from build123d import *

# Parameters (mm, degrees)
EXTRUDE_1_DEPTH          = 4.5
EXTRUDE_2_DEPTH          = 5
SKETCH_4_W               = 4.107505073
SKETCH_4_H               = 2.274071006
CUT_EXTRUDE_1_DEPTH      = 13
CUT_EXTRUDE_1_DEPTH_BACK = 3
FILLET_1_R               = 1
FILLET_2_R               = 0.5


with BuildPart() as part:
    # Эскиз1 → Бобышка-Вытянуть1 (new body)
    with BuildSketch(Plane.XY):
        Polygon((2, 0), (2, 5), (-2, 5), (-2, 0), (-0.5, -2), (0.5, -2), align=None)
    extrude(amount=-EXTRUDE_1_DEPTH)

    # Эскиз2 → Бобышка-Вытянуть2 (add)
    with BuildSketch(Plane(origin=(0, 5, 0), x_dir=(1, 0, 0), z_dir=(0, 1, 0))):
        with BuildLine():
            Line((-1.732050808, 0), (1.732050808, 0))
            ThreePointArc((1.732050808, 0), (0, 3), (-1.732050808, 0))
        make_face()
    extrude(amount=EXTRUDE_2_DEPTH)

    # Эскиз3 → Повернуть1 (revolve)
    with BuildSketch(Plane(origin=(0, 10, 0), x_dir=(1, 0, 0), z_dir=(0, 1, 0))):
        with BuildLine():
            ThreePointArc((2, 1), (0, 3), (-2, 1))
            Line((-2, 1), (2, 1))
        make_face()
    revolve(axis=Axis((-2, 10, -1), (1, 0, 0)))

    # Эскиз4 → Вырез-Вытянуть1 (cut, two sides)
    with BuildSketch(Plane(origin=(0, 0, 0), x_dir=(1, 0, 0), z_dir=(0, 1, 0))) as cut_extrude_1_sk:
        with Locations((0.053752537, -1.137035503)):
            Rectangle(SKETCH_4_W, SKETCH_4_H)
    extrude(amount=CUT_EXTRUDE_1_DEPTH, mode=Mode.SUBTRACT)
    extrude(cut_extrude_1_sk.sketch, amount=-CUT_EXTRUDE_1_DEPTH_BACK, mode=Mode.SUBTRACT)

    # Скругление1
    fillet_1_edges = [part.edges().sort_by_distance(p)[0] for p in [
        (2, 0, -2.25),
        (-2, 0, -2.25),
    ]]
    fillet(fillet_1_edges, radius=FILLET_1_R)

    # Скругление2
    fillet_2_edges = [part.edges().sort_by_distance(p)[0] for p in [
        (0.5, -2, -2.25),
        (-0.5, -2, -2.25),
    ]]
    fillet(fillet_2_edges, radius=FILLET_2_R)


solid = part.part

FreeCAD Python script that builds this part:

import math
import FreeCAD as App
import Part
import Sketcher
from FreeCAD import Vector


def edges_at(feature, points):
    """Names of the edges that pass closest to the given points."""
    edges = feature.Shape.Edges
    near = lambda p: min(range(len(edges)), key=lambda i: edges[i].distToShape(Part.Vertex(*p))[0])
    return sorted({f"Edge{near(p) + 1}" for p in points})

doc = App.newDocument("Part")
body = doc.addObject("PartDesign::Body", "Body")

# Sketch on XY plane
sketch1 = body.newObject("Sketcher::SketchObject", "Sketch")
sketch1.AttachmentSupport = (doc.getObject("XY_Plane"), [""])
sketch1.MapMode = "FlatFace"
sketch1.addGeometry(Part.LineSegment(Vector(2, 0, 0), Vector(2, 5, 0)), False)
sketch1.addGeometry(Part.LineSegment(Vector(2, 5, 0), Vector(-2, 5, 0)), False)
sketch1.addGeometry(Part.LineSegment(Vector(-2, 5, 0), Vector(-2, 0, 0)), False)
sketch1.addGeometry(Part.LineSegment(Vector(-2, 0, 0), Vector(-0.5, -2, 0)), False)
sketch1.addGeometry(Part.LineSegment(Vector(-0.5, -2, 0), Vector(0.5, -2, 0)), False)
sketch1.addGeometry(Part.LineSegment(Vector(0.5, -2, 0), Vector(2, 0, 0)), False)
sketch1.addConstraint(Sketcher.Constraint("Coincident", 0, 2, 1, 1))
sketch1.addConstraint(Sketcher.Constraint("Coincident", 1, 2, 2, 1))
sketch1.addConstraint(Sketcher.Constraint("Coincident", 2, 2, 3, 1))
sketch1.addConstraint(Sketcher.Constraint("Coincident", 3, 2, 4, 1))
sketch1.addConstraint(Sketcher.Constraint("Coincident", 4, 2, 5, 1))
sketch1.addConstraint(Sketcher.Constraint("Coincident", 5, 2, 0, 1))
sketch1.addConstraint(Sketcher.Constraint("Vertical", 0))
sketch1.addConstraint(Sketcher.Constraint("Horizontal", 1))
sketch1.addConstraint(Sketcher.Constraint("Vertical", 2))
sketch1.addConstraint(Sketcher.Constraint("Horizontal", 4))
sketch1.addConstraint(Sketcher.Constraint("Symmetric", 2, 2, 5, 2, -1, 1))
sketch1.addConstraint(Sketcher.Constraint("PointOnObject", 2, 2, -1))
sketch1.addConstraint(Sketcher.Constraint("Equal", 3, 5))
sketch1.addConstraint(Sketcher.Constraint("DistanceX", 1, 2, 1, 1, 4.0))
sketch1.addConstraint(Sketcher.Constraint("DistanceX", 4, 1, 4, 2, 1.0))
sketch1.addConstraint(Sketcher.Constraint("DistanceY", 0, 1, 0, 2, 5.0))
sketch1.addConstraint(Sketcher.Constraint("DistanceY", 3, 2, -1, 1, 2.0))
pad1 = body.newObject("PartDesign::Pad", "Pad")
pad1.Profile = sketch1
pad1.Length = 4.5
pad1.Reversed = True

# Sketch on XZ plane
sketch2 = body.newObject("Sketcher::SketchObject", "Sketch001")
sketch2.AttachmentSupport = (doc.getObject("XZ_Plane"), [""])
sketch2.MapMode = "FlatFace"
sketch2.AttachmentOffset = App.Placement(Vector(0, 0, -5), App.Rotation())
sketch2.addGeometry(Part.LineSegment(Vector(-1.732051, 0, 0), Vector(1.732051, 0, 0)), False)
sketch2.addGeometry(Part.ArcOfCircle(Part.Circle(Vector(0, -1, 0), Vector(0, 0, 1), 2), math.radians(150), math.radians(390)), False)
sketch2.addConstraint(Sketcher.Constraint("Coincident", 0, 1, 1, 1))
sketch2.addConstraint(Sketcher.Constraint("Coincident", 1, 2, 0, 2))
sketch2.addConstraint(Sketcher.Constraint("Horizontal", 0))
sketch2.addConstraint(Sketcher.Constraint("Symmetric", 0, 1, 1, 2, -1, 1))
sketch2.addConstraint(Sketcher.Constraint("Radius", 1, 2.0))
sketch2.addConstraint(Sketcher.Constraint("DistanceY", 1, 3, -1, 1, 1.0))
pad2 = body.newObject("PartDesign::Pad", "Pad001")
pad2.Profile = sketch2
pad2.Length = 5
pad2.Reversed = True

# Sketch on XZ plane
sketch3 = body.newObject("Sketcher::SketchObject", "Sketch002")
sketch3.AttachmentSupport = (doc.getObject("XZ_Plane"), [""])
sketch3.MapMode = "FlatFace"
sketch3.AttachmentOffset = App.Placement(Vector(0, 0, -10), App.Rotation())
sketch3.addGeometry(Part.ArcOfCircle(Part.Circle(Vector(0, -1, 0), Vector(0, 0, 1), 2), math.radians(180), math.radians(360)), False)
sketch3.addGeometry(Part.LineSegment(Vector(-2, -1, 0), Vector(2, -1, 0)), False)
sketch3.addGeometry(Part.LineSegment(Vector(-2, -1, 0), Vector(2, -1, 0)), True)  # axis
sketch3.addConstraint(Sketcher.Constraint("Coincident", 0, 1, 1, 1))
sketch3.addConstraint(Sketcher.Constraint("Coincident", 1, 2, 0, 2))
sketch3.addConstraint(Sketcher.Constraint("Horizontal", 1))
sketch3.addConstraint(Sketcher.Constraint("Horizontal", 2))
sketch3.addConstraint(Sketcher.Constraint("Coincident", 2, 1, 0, 1))
sketch3.addConstraint(Sketcher.Constraint("PointOnObject", 0, 3, -2))
sketch3.addConstraint(Sketcher.Constraint("Equal", 1, 2))
sketch3.addConstraint(Sketcher.Constraint("Radius", 0, 2.0))
sketch3.addConstraint(Sketcher.Constraint("DistanceY", 0, 3, -1, 1, 1.0))
sketch3.addConstraint(Sketcher.Constraint("DistanceY", 0, 1, -1, 1, 1.0))
revolution = body.newObject("PartDesign::Revolution", "Revolution")
revolution.Profile = sketch3
revolution.ReferenceAxis = (sketch3, ["Axis0"])
revolution.Angle = 360

# Sketch on XZ plane
sketch4 = body.newObject("Sketcher::SketchObject", "Sketch003")
sketch4.AttachmentSupport = (doc.getObject("XZ_Plane"), [""])
sketch4.MapMode = "FlatFace"
sketch4.addGeometry(Part.LineSegment(Vector(-2, 0, 0), Vector(-2, 2.274071, 0)), False)
sketch4.addGeometry(Part.LineSegment(Vector(-2, 2.274071, 0), Vector(2.107505, 2.274071, 0)), False)
sketch4.addGeometry(Part.LineSegment(Vector(2.107505, 2.274071, 0), Vector(2.107505, 0, 0)), False)
sketch4.addGeometry(Part.LineSegment(Vector(2.107505, 0, 0), Vector(-2, 0, 0)), False)
sketch4.addConstraint(Sketcher.Constraint("Coincident", 0, 2, 1, 1))
sketch4.addConstraint(Sketcher.Constraint("Coincident", 1, 2, 2, 1))
sketch4.addConstraint(Sketcher.Constraint("Coincident", 2, 2, 3, 1))
sketch4.addConstraint(Sketcher.Constraint("Coincident", 3, 2, 0, 1))
sketch4.addConstraint(Sketcher.Constraint("Vertical", 0))
sketch4.addConstraint(Sketcher.Constraint("Horizontal", 1))
sketch4.addConstraint(Sketcher.Constraint("Vertical", 2))
sketch4.addConstraint(Sketcher.Constraint("Horizontal", 3))
sketch4.addConstraint(Sketcher.Constraint("PointOnObject", 2, 2, -1))
sketch4.addConstraint(Sketcher.Constraint("DistanceX", 0, 2, -1, 1, 2.0))
sketch4.addConstraint(Sketcher.Constraint("DistanceY", 0, 1, 0, 2, 2.274071))
sketch4.addConstraint(Sketcher.Constraint("DistanceX", 1, 1, 1, 2, 4.107505))
pocket1 = body.newObject("PartDesign::Pocket", "Pocket")
pocket1.Profile = sketch4
pocket1.Type = "ThroughAll"
pocket1.Midplane = True
doc.recompute()

fillet = body.newObject("PartDesign::Fillet", "Fillet")
fillet.Base = (pocket1, edges_at(pocket1, [(2, 0, -2.25), (-2, 0, -2.25)]))
fillet.Radius = 1
doc.recompute()

fillet2 = body.newObject("PartDesign::Fillet", "Fillet001")
fillet2.Base = (fillet, edges_at(fillet, [(0.5, -2, -2.25), (-0.5, -2, -2.25)]))
fillet2.Radius = 0.5

doc.recompute()
